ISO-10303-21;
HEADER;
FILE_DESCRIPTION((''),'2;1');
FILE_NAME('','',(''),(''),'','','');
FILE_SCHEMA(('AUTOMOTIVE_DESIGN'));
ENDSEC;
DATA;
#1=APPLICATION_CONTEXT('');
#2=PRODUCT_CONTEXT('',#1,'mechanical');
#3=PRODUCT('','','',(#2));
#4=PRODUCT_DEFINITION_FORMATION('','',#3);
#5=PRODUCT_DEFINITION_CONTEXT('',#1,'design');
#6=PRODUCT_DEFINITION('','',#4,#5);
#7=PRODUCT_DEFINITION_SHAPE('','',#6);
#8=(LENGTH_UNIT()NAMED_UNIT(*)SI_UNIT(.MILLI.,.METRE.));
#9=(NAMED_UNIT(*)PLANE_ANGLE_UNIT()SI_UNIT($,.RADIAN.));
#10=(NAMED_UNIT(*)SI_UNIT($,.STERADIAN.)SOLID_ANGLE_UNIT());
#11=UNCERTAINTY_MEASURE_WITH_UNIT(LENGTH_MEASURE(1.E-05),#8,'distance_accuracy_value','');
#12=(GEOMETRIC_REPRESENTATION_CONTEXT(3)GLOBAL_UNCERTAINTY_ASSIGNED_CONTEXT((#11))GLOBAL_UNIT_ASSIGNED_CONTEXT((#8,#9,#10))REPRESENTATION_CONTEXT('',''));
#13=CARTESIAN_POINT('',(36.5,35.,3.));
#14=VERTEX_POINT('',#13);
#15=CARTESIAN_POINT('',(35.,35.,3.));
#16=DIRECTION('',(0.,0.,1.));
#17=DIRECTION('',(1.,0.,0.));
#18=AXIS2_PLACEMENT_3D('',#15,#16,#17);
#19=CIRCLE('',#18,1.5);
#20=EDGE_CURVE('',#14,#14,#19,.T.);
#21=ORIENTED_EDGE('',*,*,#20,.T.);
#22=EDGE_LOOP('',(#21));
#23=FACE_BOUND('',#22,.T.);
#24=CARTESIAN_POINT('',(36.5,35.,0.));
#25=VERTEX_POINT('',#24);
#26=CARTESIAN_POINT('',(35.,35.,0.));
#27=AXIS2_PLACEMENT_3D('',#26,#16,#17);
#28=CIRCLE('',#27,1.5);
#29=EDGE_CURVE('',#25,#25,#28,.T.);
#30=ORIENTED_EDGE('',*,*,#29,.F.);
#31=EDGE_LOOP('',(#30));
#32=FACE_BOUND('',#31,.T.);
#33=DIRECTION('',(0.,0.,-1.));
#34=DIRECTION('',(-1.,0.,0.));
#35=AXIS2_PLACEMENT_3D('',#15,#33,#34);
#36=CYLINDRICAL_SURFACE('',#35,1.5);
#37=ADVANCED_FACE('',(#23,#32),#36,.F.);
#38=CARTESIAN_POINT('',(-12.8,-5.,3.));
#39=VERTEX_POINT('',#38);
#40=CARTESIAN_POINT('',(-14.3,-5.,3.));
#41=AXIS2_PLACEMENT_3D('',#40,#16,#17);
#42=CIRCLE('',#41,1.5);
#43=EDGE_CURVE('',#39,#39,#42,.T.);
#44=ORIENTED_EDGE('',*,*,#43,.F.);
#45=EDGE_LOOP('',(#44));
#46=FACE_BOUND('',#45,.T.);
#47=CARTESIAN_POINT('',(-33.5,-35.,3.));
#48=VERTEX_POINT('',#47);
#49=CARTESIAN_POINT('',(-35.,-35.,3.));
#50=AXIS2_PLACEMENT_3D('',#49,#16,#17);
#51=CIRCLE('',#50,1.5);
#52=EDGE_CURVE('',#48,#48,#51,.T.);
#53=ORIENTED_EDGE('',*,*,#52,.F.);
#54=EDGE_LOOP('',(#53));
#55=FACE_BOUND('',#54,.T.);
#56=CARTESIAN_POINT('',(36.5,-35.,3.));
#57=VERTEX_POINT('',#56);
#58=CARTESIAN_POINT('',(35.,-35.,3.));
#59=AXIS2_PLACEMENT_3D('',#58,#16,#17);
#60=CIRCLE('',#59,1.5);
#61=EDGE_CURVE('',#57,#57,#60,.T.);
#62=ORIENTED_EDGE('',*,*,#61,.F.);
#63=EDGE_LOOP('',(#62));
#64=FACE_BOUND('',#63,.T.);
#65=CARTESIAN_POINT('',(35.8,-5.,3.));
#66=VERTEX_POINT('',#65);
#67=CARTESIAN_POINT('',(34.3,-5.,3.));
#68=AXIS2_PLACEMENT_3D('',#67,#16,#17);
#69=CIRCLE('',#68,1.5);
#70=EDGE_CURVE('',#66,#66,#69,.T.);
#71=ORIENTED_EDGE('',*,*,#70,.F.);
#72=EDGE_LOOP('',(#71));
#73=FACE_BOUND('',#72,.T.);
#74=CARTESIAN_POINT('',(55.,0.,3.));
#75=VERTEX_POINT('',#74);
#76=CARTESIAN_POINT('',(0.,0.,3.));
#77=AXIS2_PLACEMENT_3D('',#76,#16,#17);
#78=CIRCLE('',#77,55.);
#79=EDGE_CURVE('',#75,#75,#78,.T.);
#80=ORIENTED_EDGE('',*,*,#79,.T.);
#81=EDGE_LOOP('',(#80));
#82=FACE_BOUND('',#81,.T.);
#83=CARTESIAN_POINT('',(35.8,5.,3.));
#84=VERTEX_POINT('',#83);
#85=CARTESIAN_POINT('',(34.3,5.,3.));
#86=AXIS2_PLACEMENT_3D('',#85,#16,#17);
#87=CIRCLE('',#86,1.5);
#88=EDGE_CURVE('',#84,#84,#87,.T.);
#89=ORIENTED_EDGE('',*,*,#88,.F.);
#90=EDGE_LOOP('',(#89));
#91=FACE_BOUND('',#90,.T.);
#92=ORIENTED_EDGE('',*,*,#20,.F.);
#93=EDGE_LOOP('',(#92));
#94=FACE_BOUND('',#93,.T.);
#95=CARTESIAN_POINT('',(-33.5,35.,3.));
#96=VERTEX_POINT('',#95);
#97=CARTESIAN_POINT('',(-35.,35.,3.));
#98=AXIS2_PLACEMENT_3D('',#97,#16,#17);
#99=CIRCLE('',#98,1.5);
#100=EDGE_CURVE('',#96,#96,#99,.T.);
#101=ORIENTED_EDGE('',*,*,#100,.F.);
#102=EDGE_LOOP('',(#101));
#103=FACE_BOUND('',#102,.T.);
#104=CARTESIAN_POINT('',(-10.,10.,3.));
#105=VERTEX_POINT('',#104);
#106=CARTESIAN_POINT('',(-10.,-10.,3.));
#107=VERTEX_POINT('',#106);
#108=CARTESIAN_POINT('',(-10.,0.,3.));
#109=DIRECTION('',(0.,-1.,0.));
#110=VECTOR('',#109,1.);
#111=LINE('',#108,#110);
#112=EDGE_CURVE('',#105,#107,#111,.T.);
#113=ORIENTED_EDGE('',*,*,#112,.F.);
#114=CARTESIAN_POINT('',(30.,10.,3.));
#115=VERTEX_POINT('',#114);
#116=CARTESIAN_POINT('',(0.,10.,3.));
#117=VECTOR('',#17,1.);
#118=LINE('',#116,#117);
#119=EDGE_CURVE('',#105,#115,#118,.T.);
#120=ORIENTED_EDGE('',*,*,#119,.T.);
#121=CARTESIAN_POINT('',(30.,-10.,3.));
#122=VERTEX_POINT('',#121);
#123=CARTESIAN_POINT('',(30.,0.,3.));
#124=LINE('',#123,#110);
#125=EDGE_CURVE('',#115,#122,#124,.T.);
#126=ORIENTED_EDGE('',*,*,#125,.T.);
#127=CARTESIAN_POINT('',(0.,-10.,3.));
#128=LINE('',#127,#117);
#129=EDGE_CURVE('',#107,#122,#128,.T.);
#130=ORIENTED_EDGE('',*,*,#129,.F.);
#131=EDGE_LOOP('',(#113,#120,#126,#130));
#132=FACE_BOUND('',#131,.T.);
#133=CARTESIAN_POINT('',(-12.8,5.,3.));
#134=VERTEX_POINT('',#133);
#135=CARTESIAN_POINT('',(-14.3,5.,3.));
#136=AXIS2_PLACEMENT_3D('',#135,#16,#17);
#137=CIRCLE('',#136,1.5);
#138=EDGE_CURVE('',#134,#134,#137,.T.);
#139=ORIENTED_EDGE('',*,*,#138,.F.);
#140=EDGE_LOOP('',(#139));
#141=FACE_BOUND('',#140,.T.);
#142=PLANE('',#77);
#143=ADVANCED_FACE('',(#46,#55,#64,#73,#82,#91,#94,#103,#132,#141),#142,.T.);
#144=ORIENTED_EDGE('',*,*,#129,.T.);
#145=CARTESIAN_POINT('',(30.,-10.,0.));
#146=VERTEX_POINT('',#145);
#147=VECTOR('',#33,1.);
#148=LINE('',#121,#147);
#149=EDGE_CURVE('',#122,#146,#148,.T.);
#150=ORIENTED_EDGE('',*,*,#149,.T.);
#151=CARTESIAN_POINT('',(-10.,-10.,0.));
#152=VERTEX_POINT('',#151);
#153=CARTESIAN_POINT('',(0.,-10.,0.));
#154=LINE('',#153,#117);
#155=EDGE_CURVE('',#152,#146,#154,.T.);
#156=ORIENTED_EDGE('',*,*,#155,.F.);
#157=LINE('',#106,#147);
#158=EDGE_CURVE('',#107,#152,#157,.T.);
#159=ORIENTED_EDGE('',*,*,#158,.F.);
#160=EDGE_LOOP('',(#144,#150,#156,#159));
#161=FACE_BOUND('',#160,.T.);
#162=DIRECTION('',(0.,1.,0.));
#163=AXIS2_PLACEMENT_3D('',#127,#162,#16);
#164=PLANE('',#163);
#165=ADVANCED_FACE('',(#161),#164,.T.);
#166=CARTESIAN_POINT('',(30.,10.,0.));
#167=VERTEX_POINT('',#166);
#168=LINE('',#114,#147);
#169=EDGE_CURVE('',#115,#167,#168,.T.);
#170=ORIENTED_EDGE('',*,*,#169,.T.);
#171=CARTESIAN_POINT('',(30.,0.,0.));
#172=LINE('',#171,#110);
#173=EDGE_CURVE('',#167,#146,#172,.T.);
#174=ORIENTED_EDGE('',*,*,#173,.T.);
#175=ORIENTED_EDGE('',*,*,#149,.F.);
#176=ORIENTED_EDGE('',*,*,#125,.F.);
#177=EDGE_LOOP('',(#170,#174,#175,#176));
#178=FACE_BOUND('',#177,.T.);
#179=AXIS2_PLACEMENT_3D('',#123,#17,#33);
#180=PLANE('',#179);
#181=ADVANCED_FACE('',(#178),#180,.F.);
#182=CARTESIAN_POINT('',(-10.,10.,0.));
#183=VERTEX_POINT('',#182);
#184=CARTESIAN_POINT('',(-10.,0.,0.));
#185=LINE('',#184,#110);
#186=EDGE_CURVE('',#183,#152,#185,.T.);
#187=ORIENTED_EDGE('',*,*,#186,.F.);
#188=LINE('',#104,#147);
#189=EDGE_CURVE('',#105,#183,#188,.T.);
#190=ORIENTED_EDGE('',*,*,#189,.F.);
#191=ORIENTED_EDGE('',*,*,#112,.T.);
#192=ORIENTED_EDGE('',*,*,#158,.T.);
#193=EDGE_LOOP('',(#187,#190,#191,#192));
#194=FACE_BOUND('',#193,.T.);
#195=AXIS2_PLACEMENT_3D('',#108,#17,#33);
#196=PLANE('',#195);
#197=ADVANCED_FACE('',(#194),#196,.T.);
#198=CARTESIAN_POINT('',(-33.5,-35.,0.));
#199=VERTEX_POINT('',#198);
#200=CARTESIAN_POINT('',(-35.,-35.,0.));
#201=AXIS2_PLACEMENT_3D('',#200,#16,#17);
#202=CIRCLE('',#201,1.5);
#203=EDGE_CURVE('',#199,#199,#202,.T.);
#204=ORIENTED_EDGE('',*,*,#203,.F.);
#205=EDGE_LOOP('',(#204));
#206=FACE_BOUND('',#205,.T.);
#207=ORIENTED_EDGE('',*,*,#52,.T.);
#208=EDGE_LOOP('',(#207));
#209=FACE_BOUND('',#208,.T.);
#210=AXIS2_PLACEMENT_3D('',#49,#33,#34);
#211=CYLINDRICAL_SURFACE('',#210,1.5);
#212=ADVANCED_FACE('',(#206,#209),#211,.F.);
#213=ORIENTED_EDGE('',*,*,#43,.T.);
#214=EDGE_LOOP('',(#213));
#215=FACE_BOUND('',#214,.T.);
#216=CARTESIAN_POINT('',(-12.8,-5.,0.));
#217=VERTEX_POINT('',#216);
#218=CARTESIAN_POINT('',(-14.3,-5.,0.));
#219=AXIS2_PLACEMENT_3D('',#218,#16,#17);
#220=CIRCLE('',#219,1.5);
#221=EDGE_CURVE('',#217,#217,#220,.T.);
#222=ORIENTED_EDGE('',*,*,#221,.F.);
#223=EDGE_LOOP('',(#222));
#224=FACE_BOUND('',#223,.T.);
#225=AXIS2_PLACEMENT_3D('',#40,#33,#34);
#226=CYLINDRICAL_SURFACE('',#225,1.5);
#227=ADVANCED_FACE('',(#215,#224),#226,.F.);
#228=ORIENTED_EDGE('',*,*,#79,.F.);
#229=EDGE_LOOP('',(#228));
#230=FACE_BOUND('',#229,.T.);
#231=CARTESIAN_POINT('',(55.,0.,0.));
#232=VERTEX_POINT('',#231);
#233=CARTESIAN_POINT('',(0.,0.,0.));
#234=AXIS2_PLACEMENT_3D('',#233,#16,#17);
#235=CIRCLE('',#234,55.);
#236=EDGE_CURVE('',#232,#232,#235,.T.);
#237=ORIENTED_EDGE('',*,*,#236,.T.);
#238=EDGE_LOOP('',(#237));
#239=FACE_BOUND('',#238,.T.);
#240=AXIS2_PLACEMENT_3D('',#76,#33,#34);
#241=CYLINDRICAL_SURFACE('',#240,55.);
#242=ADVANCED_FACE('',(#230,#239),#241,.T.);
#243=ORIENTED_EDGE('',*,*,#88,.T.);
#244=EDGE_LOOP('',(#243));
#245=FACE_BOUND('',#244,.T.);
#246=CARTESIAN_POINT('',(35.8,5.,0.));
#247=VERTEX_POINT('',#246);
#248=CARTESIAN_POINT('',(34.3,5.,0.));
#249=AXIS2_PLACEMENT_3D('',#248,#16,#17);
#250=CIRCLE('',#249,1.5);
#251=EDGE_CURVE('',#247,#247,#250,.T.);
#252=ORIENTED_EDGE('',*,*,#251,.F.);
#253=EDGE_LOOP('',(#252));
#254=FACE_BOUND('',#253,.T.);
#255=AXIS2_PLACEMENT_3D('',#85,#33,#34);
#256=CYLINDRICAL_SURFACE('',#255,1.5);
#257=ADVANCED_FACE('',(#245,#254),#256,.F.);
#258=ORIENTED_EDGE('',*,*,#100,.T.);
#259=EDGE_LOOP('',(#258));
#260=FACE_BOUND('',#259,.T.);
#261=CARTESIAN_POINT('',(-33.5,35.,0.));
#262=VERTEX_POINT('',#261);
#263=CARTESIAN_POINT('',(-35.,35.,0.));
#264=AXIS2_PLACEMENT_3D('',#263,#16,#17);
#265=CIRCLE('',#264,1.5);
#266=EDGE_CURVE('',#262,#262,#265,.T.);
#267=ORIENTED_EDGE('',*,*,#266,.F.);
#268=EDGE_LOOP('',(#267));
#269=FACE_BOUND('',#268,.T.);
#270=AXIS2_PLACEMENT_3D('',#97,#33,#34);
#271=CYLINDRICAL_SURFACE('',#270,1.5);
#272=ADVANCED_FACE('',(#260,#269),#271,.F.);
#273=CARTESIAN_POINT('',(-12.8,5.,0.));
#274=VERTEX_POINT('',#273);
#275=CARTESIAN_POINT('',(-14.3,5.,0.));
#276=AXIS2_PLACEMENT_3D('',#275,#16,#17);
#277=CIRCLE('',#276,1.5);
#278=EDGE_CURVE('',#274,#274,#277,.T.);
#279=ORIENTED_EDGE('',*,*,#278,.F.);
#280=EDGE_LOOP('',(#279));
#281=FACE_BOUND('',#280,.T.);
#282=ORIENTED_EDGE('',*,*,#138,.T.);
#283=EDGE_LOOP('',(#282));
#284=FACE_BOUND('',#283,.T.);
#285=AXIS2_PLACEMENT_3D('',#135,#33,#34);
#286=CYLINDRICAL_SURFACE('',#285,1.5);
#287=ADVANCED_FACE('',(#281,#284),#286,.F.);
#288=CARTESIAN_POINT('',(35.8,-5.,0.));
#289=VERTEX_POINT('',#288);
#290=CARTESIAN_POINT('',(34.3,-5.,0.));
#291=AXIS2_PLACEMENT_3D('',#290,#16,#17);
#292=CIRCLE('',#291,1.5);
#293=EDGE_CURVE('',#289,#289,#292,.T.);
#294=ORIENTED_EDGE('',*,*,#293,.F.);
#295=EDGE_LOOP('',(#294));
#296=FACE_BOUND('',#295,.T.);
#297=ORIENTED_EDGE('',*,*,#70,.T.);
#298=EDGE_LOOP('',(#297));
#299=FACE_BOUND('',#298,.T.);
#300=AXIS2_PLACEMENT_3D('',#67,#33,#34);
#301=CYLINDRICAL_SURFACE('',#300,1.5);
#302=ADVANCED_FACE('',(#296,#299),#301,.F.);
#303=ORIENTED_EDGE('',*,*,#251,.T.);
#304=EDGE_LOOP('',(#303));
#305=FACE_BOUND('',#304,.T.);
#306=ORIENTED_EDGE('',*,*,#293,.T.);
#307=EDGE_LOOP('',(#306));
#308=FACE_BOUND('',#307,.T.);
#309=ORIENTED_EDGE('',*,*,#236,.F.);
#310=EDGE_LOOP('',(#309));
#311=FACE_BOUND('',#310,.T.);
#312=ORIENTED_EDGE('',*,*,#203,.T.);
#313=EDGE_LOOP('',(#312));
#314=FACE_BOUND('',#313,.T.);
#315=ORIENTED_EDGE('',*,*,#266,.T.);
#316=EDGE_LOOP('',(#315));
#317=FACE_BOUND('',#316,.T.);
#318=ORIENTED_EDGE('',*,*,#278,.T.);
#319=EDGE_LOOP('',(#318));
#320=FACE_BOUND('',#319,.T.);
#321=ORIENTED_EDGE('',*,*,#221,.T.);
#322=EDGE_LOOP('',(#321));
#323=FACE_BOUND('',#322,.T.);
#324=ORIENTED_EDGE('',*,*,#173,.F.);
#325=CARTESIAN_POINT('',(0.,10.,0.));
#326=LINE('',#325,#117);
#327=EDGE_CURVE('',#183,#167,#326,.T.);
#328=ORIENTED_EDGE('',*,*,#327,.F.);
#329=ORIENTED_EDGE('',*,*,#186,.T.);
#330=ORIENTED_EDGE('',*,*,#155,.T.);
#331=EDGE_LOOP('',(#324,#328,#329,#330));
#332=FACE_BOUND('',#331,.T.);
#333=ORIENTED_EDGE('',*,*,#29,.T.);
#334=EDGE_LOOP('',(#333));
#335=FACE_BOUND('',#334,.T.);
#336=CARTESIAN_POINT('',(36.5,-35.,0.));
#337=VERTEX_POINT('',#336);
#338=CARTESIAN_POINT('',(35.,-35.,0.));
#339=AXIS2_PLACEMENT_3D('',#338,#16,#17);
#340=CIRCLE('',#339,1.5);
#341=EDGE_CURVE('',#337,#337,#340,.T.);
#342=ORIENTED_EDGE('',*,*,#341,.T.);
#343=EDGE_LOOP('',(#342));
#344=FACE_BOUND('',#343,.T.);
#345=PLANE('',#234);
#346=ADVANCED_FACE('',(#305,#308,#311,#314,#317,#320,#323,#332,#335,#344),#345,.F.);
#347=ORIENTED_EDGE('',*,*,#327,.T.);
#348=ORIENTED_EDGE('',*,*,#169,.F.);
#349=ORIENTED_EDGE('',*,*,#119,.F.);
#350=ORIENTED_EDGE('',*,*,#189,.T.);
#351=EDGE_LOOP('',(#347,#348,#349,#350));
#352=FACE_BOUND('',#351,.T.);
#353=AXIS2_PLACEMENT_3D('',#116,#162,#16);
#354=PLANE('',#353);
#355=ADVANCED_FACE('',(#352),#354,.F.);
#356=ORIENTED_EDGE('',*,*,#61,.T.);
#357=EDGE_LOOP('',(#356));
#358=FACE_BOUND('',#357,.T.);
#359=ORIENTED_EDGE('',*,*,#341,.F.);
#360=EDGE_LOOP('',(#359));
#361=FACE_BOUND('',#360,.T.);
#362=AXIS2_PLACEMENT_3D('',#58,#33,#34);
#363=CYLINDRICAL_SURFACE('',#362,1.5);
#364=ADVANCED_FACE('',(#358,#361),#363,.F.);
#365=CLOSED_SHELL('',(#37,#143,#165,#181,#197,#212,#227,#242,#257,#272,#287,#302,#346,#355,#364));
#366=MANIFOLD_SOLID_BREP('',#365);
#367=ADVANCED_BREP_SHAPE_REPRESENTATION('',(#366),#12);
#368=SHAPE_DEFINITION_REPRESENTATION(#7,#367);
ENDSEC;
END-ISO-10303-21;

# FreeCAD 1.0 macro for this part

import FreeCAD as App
import Part
import Sketcher
from FreeCAD import Vector

doc = App.newDocument("Part")
body = doc.addObject("PartDesign::Body", "Body")

sketch1 = doc.addObject("Sketcher::SketchObject", "Sketch")
body.addObject(sketch1)
sketch1.AttachmentSupport = (doc.XY_Plane, [""])
sketch1.MapMode = "FlatFace"
sketch1.addGeometry([
    Part.Circle(Vector(0, 0, 0), Vector(0, 0, 1), 55),
    Part.Circle(Vector(-35, -35, 0), Vector(0, 0, 1), 1.5),
    Part.Circle(Vector(-14.3, -5, 0), Vector(0, 0, 1), 1.5),
    Part.Circle(Vector(35, -35, 0), Vector(0, 0, 1), 1.5),
    Part.Circle(Vector(34.3, -5, 0), Vector(0, 0, 1), 1.5),
    Part.Circle(Vector(-14.3, 5, 0), Vector(0, 0, 1), 1.5),
    Part.Circle(Vector(-35, 35, 0), Vector(0, 0, 1), 1.5),
    Part.LineSegment(Vector(30, -10, 0), Vector(-10, -10, 0)),
    Part.LineSegment(Vector(-10, -10, 0), Vector(-10, 10, 0)),
    Part.LineSegment(Vector(-10, 10, 0), Vector(30, 10, 0)),
    Part.LineSegment(Vector(30, 10, 0), Vector(30, -10, 0)),
    Part.Circle(Vector(34.3, 5, 0), Vector(0, 0, 1), 1.5),
    Part.Circle(Vector(35, 35, 0), Vector(0, 0, 1), 1.5),
], False)
sketch1.addConstraint([
    Sketcher.Constraint("Coincident", 7, 2, 8, 1),
    Sketcher.Constraint("Coincident", 8, 2, 9, 1),
    Sketcher.Constraint("Coincident", 9, 2, 10, 1),
    Sketcher.Constraint("Coincident", 10, 2, 7, 1),
    Sketcher.Constraint("Horizontal", 7),
    Sketcher.Constraint("Vertical", 8),
    Sketcher.Constraint("Horizontal", 9),
    Sketcher.Constraint("Vertical", 10),
    Sketcher.Constraint("Coincident", 0, 3, -1, 1),
    Sketcher.Constraint("Equal", 1, 2),
    Sketcher.Constraint("Equal", 2, 3),
    Sketcher.Constraint("Equal", 3, 4),
    Sketcher.Constraint("Equal", 4, 5),
    Sketcher.Constraint("Equal", 5, 6),
    Sketcher.Constraint("Equal", 6, 11),
    Sketcher.Constraint("Equal", 11, 12),
    Sketcher.Constraint("Symmetric", 3, 3, 6, 3, -1, 1),
    Sketcher.Constraint("Symmetric", 1, 3, 12, 3, -1, 1),
    Sketcher.Constraint("Symmetric", 1, 3, 3, 3, -2),
    Sketcher.Constraint("Symmetric", 2, 3, 5, 3, -1),
    Sketcher.Constraint("Symmetric", 4, 3, 11, 3, -1),
    Sketcher.Constraint("Horizontal", 2, 3, 4, 3),
    Sketcher.Constraint("Diameter", 0, 110.0),
    Sketcher.Constraint("Diameter", 1, 3.0),
    Sketcher.Constraint("DistanceX", 7, 2, 7, 1, 40.0),
    Sketcher.Constraint("DistanceY", 8, 1, 8, 2, 20.0),
    Sketcher.Constraint("DistanceX", 1, 3, -1, 1, 35.0),
    Sketcher.Constraint("DistanceY", 1, 3, -1, 1, 35.0),
    Sketcher.Constraint("DistanceY", 2, 3, -1, 1, 5.0),
    Sketcher.Constraint("DistanceX", 7, 2, -1, 1, 10.0),
    Sketcher.Constraint("DistanceY", 7, 2, -1, 1, 10.0),
    Sketcher.Constraint("DistanceX", 2, 3, -1, 1, 14.3),
    Sketcher.Constraint("DistanceX", -1, 1, 4, 3, 34.3),
])
pad1 = doc.addObject("PartDesign::Pad", "Pad")
body.addObject(pad1)
pad1.Profile = sketch1
pad1.Length = 3

doc.recompute()
